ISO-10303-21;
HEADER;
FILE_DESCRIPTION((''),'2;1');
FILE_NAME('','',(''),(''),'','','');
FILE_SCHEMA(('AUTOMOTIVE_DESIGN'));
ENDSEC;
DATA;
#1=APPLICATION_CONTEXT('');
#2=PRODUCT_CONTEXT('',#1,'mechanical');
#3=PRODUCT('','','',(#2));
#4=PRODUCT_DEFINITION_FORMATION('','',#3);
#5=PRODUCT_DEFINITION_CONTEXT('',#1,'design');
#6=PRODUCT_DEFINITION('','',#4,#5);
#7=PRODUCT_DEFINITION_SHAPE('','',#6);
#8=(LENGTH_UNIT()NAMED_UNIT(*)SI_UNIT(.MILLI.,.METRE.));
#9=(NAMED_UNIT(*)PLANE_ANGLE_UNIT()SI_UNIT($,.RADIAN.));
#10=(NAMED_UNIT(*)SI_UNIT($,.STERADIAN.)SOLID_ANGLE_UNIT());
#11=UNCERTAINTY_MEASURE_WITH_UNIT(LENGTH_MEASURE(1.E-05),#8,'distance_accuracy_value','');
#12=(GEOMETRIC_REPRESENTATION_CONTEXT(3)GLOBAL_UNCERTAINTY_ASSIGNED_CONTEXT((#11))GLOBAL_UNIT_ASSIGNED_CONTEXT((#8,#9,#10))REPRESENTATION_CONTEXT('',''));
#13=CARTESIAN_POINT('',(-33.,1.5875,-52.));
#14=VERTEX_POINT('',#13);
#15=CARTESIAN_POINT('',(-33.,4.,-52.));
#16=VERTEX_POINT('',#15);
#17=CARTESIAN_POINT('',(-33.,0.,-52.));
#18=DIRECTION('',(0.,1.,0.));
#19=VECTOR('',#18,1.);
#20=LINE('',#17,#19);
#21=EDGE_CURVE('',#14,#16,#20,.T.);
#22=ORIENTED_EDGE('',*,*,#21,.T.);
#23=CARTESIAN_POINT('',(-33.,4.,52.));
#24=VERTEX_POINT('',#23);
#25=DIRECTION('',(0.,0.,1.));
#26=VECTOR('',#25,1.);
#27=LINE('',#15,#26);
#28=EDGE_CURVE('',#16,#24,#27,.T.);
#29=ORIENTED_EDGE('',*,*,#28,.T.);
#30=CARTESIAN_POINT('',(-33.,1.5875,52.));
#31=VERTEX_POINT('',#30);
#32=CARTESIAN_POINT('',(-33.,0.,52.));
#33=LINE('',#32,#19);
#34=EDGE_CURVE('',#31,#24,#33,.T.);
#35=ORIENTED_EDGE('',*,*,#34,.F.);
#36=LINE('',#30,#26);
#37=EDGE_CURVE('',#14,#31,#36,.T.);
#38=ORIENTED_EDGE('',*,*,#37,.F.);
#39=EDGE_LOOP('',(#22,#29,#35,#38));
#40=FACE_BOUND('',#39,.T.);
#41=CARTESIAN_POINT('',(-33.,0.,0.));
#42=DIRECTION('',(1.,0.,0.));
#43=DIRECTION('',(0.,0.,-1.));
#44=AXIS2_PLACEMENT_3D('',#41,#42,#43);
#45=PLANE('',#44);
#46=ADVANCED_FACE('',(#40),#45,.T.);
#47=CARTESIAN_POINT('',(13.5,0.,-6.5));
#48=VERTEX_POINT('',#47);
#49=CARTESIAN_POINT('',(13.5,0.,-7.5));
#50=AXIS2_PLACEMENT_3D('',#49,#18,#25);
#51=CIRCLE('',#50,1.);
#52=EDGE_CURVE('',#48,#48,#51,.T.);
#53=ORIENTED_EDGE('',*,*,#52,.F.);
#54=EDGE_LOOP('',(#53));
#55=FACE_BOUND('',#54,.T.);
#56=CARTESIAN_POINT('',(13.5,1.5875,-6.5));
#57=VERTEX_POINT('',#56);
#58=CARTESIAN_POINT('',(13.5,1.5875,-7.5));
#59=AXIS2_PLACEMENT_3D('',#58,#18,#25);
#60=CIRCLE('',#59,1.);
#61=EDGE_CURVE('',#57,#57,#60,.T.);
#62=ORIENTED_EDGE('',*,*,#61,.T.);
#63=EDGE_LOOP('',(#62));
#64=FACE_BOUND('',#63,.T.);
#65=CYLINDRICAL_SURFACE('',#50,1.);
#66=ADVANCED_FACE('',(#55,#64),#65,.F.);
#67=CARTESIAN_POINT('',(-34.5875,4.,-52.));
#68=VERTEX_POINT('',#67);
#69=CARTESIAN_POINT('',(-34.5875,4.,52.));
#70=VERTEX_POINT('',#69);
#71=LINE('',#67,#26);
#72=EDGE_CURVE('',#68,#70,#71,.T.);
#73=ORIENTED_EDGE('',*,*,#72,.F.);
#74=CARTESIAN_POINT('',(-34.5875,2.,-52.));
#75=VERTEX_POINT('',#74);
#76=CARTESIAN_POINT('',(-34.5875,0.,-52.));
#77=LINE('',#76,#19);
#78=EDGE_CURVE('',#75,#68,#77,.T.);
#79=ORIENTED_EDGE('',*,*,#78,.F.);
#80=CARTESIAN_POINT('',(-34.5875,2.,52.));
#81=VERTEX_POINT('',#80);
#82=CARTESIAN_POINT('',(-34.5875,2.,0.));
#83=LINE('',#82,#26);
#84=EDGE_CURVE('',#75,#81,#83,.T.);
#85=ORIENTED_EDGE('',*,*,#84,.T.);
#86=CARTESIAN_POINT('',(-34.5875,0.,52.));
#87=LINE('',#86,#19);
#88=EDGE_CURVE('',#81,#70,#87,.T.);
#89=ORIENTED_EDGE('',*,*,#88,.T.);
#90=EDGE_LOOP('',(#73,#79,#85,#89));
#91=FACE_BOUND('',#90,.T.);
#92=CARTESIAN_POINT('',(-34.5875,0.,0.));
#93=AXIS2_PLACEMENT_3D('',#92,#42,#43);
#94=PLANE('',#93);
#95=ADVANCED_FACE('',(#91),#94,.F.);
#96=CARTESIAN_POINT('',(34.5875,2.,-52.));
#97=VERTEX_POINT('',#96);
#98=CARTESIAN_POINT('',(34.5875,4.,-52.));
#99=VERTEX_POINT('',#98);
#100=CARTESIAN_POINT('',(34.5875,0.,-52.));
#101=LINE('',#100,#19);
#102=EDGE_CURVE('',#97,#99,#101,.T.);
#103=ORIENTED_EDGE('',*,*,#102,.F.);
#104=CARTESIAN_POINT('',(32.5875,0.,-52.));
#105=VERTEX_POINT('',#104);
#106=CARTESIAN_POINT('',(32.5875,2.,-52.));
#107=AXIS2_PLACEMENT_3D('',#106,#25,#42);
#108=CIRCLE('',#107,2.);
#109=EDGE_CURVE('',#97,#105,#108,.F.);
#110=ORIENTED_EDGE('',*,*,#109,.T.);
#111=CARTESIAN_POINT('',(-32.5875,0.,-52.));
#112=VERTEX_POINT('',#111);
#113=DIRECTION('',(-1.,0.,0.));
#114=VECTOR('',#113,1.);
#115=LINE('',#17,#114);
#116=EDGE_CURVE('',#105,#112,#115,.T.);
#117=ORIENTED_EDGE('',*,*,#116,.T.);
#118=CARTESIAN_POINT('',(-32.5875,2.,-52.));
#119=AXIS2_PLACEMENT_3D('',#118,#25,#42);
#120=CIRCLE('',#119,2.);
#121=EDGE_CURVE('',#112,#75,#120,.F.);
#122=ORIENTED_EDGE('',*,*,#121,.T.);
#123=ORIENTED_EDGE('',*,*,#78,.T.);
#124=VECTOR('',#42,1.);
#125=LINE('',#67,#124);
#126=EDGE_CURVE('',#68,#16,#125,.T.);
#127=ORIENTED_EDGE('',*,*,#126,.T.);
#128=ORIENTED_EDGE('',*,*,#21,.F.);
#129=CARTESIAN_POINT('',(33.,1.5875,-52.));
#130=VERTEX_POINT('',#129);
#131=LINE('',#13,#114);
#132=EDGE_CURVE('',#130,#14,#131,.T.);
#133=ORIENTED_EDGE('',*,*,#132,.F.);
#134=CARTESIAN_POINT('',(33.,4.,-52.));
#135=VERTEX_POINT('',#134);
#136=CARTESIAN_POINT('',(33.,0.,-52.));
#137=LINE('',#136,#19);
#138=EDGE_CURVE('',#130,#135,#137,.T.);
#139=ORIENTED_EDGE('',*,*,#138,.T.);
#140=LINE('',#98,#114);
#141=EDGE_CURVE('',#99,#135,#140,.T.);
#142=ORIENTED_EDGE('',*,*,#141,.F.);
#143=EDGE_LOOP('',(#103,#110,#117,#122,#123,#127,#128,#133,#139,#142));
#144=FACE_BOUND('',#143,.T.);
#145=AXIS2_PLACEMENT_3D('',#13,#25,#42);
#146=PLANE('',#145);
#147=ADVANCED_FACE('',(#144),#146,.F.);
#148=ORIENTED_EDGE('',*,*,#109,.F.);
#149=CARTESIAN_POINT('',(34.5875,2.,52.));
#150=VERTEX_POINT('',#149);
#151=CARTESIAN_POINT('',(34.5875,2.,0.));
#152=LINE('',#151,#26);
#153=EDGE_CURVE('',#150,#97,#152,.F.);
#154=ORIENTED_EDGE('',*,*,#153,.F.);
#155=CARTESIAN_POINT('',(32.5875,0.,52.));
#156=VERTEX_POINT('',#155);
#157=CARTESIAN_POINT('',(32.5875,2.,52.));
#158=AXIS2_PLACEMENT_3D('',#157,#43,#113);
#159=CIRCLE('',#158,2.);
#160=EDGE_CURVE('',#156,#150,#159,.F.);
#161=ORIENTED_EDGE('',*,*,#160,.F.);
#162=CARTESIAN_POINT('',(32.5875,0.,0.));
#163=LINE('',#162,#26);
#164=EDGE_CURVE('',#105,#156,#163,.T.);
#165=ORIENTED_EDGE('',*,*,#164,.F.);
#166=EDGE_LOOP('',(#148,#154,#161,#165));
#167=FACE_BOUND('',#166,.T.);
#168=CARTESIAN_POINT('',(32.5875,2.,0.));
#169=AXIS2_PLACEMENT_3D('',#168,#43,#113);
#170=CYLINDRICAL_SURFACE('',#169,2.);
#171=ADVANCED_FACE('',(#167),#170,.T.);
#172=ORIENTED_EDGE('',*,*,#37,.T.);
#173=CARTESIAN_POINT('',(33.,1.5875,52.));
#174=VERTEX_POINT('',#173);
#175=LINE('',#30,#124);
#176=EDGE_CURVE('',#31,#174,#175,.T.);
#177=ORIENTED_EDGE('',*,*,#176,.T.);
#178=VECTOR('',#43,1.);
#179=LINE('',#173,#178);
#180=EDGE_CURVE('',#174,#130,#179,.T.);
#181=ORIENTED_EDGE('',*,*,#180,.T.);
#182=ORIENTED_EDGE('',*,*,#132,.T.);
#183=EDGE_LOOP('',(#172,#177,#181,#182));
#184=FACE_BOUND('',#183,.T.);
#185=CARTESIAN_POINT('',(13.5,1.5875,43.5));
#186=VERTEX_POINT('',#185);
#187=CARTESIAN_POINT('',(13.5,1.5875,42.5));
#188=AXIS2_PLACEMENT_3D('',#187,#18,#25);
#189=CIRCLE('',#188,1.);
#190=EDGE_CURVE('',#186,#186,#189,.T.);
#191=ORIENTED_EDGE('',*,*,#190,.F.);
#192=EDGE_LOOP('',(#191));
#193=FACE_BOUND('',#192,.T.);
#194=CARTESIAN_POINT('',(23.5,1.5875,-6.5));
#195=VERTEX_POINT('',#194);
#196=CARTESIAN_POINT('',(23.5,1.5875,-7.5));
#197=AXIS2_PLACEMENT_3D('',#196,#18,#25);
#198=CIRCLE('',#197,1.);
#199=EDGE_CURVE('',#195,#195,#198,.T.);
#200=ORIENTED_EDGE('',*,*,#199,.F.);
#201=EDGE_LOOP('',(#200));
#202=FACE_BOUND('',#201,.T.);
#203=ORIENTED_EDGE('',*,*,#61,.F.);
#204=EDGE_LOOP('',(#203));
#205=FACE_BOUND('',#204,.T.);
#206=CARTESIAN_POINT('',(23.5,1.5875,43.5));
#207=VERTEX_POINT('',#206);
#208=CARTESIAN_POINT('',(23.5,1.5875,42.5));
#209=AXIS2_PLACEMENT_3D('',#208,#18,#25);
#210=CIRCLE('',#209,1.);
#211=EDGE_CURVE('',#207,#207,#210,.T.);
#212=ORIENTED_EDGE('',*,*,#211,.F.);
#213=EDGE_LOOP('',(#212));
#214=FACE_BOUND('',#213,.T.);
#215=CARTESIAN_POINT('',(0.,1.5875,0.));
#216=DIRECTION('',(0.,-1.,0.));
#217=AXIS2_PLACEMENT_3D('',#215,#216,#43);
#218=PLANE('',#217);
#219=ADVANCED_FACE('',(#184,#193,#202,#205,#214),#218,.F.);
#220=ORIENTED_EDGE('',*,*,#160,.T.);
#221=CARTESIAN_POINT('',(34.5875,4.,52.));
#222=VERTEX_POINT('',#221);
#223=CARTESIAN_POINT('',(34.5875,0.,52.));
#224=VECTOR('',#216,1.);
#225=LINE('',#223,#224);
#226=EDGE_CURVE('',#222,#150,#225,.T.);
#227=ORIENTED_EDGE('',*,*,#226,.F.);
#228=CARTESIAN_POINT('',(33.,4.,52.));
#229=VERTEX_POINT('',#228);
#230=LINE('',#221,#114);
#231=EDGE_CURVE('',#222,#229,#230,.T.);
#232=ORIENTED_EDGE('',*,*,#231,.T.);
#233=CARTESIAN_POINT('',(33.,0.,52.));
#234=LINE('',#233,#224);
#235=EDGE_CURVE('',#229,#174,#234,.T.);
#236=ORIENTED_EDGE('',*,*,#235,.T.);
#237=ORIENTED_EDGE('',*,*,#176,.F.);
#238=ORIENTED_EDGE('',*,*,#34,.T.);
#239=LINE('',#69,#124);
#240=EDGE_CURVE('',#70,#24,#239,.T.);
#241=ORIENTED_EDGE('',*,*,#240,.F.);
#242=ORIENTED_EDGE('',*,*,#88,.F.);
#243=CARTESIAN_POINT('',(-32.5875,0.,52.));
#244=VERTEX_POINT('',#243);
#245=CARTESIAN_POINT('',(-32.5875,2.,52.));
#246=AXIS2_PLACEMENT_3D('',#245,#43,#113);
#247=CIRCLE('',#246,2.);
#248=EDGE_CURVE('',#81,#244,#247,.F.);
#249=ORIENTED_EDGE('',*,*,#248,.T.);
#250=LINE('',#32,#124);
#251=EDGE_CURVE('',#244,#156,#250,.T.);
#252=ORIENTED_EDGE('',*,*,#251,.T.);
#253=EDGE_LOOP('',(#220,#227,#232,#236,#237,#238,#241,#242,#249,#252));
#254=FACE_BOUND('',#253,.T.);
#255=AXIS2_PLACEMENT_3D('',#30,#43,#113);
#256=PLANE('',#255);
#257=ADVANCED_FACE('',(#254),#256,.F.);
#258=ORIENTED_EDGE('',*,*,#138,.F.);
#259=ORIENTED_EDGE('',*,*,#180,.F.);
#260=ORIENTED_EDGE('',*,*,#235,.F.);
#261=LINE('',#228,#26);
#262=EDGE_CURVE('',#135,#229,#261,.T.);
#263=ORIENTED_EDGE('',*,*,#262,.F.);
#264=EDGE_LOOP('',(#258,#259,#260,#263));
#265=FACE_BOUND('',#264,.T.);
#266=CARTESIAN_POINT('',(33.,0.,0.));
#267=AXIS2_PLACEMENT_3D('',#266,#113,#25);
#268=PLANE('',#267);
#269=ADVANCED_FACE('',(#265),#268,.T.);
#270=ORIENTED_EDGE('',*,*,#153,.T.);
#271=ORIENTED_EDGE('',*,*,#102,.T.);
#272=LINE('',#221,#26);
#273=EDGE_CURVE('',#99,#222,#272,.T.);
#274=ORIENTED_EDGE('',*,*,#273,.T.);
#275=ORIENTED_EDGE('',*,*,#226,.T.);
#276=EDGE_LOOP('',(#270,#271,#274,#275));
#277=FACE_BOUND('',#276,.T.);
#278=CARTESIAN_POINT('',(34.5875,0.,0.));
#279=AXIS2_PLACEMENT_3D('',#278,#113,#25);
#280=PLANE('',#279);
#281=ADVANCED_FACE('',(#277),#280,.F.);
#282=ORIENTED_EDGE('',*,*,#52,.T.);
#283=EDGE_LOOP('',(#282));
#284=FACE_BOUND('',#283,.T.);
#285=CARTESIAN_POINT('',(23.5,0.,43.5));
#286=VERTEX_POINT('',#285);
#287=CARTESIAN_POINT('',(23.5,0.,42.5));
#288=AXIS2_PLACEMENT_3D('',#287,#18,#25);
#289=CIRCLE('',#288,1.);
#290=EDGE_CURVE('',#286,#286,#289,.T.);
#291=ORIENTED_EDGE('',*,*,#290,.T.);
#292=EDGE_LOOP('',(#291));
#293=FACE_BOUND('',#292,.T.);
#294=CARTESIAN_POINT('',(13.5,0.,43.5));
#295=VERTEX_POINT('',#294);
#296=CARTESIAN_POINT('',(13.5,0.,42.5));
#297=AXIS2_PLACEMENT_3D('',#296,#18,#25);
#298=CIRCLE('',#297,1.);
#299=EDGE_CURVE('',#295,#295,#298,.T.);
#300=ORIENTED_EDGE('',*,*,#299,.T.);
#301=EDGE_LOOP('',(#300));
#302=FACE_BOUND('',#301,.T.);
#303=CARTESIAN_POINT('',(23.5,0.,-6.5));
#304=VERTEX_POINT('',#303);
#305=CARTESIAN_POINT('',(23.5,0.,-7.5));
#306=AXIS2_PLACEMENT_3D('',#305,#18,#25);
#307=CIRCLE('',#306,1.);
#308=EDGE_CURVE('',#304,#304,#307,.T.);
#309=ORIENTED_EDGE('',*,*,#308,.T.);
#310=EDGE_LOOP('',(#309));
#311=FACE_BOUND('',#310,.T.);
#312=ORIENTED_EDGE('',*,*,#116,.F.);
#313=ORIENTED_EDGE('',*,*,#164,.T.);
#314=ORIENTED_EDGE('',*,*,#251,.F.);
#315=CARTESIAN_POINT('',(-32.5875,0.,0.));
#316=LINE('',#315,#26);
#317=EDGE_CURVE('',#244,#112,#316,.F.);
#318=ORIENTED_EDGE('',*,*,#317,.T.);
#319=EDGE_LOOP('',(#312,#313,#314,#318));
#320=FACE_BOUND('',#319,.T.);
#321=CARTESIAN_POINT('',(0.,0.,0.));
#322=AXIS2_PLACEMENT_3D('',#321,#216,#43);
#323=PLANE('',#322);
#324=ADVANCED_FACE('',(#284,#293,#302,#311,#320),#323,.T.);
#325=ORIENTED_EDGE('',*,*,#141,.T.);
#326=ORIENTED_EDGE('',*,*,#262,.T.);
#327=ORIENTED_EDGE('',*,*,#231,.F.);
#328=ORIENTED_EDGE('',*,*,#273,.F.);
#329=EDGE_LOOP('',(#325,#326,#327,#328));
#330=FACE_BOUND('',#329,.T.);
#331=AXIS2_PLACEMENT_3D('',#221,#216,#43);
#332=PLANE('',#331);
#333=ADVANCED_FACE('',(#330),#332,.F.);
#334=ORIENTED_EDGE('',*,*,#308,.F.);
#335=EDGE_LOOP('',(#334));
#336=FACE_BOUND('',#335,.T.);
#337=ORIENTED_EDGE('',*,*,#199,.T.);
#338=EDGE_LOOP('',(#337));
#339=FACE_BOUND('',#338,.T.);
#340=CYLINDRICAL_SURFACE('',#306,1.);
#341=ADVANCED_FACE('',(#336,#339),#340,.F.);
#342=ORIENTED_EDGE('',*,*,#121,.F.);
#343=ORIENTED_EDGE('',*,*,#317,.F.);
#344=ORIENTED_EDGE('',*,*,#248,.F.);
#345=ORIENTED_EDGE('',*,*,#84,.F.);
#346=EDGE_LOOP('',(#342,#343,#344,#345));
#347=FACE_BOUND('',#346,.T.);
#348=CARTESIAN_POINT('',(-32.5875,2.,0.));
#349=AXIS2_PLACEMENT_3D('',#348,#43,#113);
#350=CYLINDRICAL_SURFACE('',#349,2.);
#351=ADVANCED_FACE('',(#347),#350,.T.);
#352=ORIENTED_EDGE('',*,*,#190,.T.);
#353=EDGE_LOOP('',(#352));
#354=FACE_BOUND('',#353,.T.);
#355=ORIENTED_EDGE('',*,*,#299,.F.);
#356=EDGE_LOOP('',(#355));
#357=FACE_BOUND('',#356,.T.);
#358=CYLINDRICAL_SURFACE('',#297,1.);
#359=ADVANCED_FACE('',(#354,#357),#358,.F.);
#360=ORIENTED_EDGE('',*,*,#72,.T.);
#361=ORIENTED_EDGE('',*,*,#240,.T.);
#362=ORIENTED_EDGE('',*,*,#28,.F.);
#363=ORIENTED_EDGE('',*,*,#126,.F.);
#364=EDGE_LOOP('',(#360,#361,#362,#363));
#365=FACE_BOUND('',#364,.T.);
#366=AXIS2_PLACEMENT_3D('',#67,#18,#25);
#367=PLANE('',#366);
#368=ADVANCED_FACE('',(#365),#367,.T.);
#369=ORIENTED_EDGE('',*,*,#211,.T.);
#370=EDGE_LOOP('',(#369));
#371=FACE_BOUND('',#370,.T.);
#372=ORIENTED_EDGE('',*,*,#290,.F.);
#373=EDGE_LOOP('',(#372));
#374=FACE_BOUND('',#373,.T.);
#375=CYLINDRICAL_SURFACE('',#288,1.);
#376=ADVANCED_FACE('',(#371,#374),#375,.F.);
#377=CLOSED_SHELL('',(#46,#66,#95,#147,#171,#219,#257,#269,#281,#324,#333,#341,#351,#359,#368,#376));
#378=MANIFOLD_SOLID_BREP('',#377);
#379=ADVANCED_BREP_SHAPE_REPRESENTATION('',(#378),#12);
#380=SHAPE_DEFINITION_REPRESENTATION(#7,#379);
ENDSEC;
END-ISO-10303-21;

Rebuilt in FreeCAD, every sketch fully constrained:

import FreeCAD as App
import Part
import Sketcher
from FreeCAD import Vector


def edges_at(feature, points):
    """Names of the edges that pass closest to the given points."""
    edges = feature.Shape.Edges
    near = lambda p: min(range(len(edges)), key=lambda i: edges[i].distToShape(Part.Vertex(*p))[0])
    return sorted({f"Edge{near(p) + 1}" for p in points})

doc = App.newDocument("Part")
body = doc.addObject("PartDesign::Body", "Body")

# Sketch on XZ plane
sketch1 = body.newObject("Sketcher::SketchObject", "Sketch")
sketch1.AttachmentSupport = (doc.getObject("XZ_Plane"), [""])
sketch1.MapMode = "FlatFace"
sketch1.addGeometry(Part.LineSegment(Vector(-33, -52, 0), Vector(-33, 52, 0)), False)
sketch1.addGeometry(Part.LineSegment(Vector(-33, 52, 0), Vector(33, 52, 0)), False)
sketch1.addGeometry(Part.LineSegment(Vector(33, 52, 0), Vector(33, -52, 0)), False)
sketch1.addGeometry(Part.LineSegment(Vector(33, -52, 0), Vector(-33, -52, 0)), False)
sketch1.addConstraint(Sketcher.Constraint("Coincident", 0, 2, 1, 1))
sketch1.addConstraint(Sketcher.Constraint("Coincident", 1, 2, 2, 1))
sketch1.addConstraint(Sketcher.Constraint("Coincident", 2, 2, 3, 1))
sketch1.addConstraint(Sketcher.Constraint("Coincident", 3, 2, 0, 1))
sketch1.addConstraint(Sketcher.Constraint("Vertical", 0))
sketch1.addConstraint(Sketcher.Constraint("Horizontal", 1))
sketch1.addConstraint(Sketcher.Constraint("Vertical", 2))
sketch1.addConstraint(Sketcher.Constraint("Horizontal", 3))
sketch1.addConstraint(Sketcher.Constraint("Symmetric", 0, 2, 2, 2, -1, 1))
sketch1.addConstraint(Sketcher.Constraint("DistanceX", 1, 1, 1, 2, 66.0))
sketch1.addConstraint(Sketcher.Constraint("DistanceY", 0, 1, 0, 2, 104.0))
pad1 = body.newObject("PartDesign::Pad", "Pad")
pad1.Profile = sketch1
pad1.Length = 1.5875
pad1.Reversed = True

# Sketch on YZ plane
sketch2 = body.newObject("Sketcher::SketchObject", "Sketch001")
sketch2.AttachmentSupport = (doc.getObject("YZ_Plane"), [""])
sketch2.MapMode = "FlatFace"
sketch2.AttachmentOffset = App.Placement(Vector(0, 0, -33), App.Rotation())
sketch2.addGeometry(Part.LineSegment(Vector(4, -52, 0), Vector(0, -52, 0)), False)
sketch2.addGeometry(Part.LineSegment(Vector(0, -52, 0), Vector(0, 52, 0)), False)
sketch2.addGeometry(Part.LineSegment(Vector(0, 52, 0), Vector(4, 52, 0)), False)
sketch2.addGeometry(Part.LineSegment(Vector(4, 52, 0), Vector(4, -52, 0)), False)
sketch2.addConstraint(Sketcher.Constraint("Coincident", 0, 2, 1, 1))
sketch2.addConstraint(Sketcher.Constraint("Coincident", 1, 2, 2, 1))
sketch2.addConstraint(Sketcher.Constraint("Coincident", 2, 2, 3, 1))
sketch2.addConstraint(Sketcher.Constraint("Coincident", 3, 2, 0, 1))
sketch2.addConstraint(Sketcher.Constraint("Horizontal", 0))
sketch2.addConstraint(Sketcher.Constraint("Vertical", 1))
sketch2.addConstraint(Sketcher.Constraint("Horizontal", 2))
sketch2.addConstraint(Sketcher.Constraint("Vertical", 3))
sketch2.addConstraint(Sketcher.Constraint("Symmetric", 0, 2, 1, 2, -1, 1))
sketch2.addConstraint(Sketcher.Constraint("DistanceX", 0, 2, 0, 1, 4.0))
sketch2.addConstraint(Sketcher.Constraint("DistanceY", 1, 1, 1, 2, 104.0))
pad2 = body.newObject("PartDesign::Pad", "Pad001")
pad2.Profile = sketch2
pad2.Length = 1.5875
pad2.Reversed = True

# Sketch on YZ plane
sketch3 = body.newObject("Sketcher::SketchObject", "Sketch002")
sketch3.AttachmentSupport = (doc.getObject("YZ_Plane"), [""])
sketch3.MapMode = "FlatFace"
sketch3.AttachmentOffset = App.Placement(Vector(0, 0, 33), App.Rotation())
sketch3.addGeometry(Part.LineSegment(Vector(4, 52, 0), Vector(0, 52, 0)), False)
sketch3.addGeometry(Part.LineSegment(Vector(0, 52, 0), Vector(0, -52, 0)), False)
sketch3.addGeometry(Part.LineSegment(Vector(0, -52, 0), Vector(4, -52, 0)), False)
sketch3.addGeometry(Part.LineSegment(Vector(4, -52, 0), Vector(4, 52, 0)), False)
sketch3.addConstraint(Sketcher.Constraint("Coincident", 0, 2, 1, 1))
sketch3.addConstraint(Sketcher.Constraint("Coincident", 1, 2, 2, 1))
sketch3.addConstraint(Sketcher.Constraint("Coincident", 2, 2, 3, 1))
sketch3.addConstraint(Sketcher.Constraint("Coincident", 3, 2, 0, 1))
sketch3.addConstraint(Sketcher.Constraint("Horizontal", 0))
sketch3.addConstraint(Sketcher.Constraint("Vertical", 1))
sketch3.addConstraint(Sketcher.Constraint("Horizontal", 2))
sketch3.addConstraint(Sketcher.Constraint("Vertical", 3))
sketch3.addConstraint(Sketcher.Constraint("Symmetric", 0, 2, 1, 2, -1, 1))
sketch3.addConstraint(Sketcher.Constraint("DistanceX", 0, 2, 0, 1, 4.0))
sketch3.addConstraint(Sketcher.Constraint("DistanceY", 1, 2, 1, 1, 104.0))
pad3 = body.newObject("PartDesign::Pad", "Pad002")
pad3.Profile = sketch3
pad3.Length = 1.5875
doc.recompute()

fillet = body.newObject("PartDesign::Fillet", "Fillet")
fillet.Base = (pad3, edges_at(pad3, [(34.587, 0, 0)]))
fillet.Radius = 2
doc.recompute()

fillet2 = body.newObject("PartDesign::Fillet", "Fillet001")
fillet2.Base = (fillet, edges_at(fillet, [(-34.587, 0, 0)]))
fillet2.Radius = 2

# Sketch on XZ plane
sketch4 = body.newObject("Sketcher::SketchObject", "Sketch003")
sketch4.AttachmentSupport = (doc.getObject("XZ_Plane"), [""])
sketch4.MapMode = "FlatFace"
sketch4.AttachmentOffset = App.Placement(Vector(0, 0, -1.5875), App.Rotation())
sketch4.addGeometry(Part.Circle(Vector(13.5, -7.5, 0), Vector(0, 0, 1), 1), False)
sketch4.addGeometry(Part.Circle(Vector(23.5, -7.5, 0), Vector(0, 0, 1), 1), False)
sketch4.addGeometry(Part.Circle(Vector(23.5, 42.5, 0), Vector(0, 0, 1), 1), False)
sketch4.addGeometry(Part.Circle(Vector(13.5, 42.5, 0), Vector(0, 0, 1), 1), False)
sketch4.addConstraint(Sketcher.Constraint("Equal", 0, 1))
sketch4.addConstraint(Sketcher.Constraint("Equal", 1, 2))
sketch4.addConstraint(Sketcher.Constraint("Equal", 2, 3))
sketch4.addConstraint(Sketcher.Constraint("Horizontal", 0, 3, 1, 3))
sketch4.addConstraint(Sketcher.Constraint("Horizontal", 2, 3, 3, 3))
sketch4.addConstraint(Sketcher.Constraint("Vertical", 1, 3, 2, 3))
sketch4.addConstraint(Sketcher.Constraint("Vertical", 0, 3, 3, 3))
sketch4.addConstraint(Sketcher.Constraint("Diameter", 0, 2.0))
sketch4.addConstraint(Sketcher.Constraint("DistanceX", 0, 3, 1, 3, 10.0))
sketch4.addConstraint(Sketcher.Constraint("DistanceY", 1, 3, 2, 3, 50.0))
sketch4.addConstraint(Sketcher.Constraint("DistanceX", -1, 1, 0, 3, 13.5))
sketch4.addConstraint(Sketcher.Constraint("DistanceY", 0, 3, -1, 1, 7.5))
pocket1 = body.newObject("PartDesign::Pocket", "Pocket")
pocket1.Profile = sketch4
pocket1.Length = 1.5875
pocket1.Reversed = True

doc.recompute()
